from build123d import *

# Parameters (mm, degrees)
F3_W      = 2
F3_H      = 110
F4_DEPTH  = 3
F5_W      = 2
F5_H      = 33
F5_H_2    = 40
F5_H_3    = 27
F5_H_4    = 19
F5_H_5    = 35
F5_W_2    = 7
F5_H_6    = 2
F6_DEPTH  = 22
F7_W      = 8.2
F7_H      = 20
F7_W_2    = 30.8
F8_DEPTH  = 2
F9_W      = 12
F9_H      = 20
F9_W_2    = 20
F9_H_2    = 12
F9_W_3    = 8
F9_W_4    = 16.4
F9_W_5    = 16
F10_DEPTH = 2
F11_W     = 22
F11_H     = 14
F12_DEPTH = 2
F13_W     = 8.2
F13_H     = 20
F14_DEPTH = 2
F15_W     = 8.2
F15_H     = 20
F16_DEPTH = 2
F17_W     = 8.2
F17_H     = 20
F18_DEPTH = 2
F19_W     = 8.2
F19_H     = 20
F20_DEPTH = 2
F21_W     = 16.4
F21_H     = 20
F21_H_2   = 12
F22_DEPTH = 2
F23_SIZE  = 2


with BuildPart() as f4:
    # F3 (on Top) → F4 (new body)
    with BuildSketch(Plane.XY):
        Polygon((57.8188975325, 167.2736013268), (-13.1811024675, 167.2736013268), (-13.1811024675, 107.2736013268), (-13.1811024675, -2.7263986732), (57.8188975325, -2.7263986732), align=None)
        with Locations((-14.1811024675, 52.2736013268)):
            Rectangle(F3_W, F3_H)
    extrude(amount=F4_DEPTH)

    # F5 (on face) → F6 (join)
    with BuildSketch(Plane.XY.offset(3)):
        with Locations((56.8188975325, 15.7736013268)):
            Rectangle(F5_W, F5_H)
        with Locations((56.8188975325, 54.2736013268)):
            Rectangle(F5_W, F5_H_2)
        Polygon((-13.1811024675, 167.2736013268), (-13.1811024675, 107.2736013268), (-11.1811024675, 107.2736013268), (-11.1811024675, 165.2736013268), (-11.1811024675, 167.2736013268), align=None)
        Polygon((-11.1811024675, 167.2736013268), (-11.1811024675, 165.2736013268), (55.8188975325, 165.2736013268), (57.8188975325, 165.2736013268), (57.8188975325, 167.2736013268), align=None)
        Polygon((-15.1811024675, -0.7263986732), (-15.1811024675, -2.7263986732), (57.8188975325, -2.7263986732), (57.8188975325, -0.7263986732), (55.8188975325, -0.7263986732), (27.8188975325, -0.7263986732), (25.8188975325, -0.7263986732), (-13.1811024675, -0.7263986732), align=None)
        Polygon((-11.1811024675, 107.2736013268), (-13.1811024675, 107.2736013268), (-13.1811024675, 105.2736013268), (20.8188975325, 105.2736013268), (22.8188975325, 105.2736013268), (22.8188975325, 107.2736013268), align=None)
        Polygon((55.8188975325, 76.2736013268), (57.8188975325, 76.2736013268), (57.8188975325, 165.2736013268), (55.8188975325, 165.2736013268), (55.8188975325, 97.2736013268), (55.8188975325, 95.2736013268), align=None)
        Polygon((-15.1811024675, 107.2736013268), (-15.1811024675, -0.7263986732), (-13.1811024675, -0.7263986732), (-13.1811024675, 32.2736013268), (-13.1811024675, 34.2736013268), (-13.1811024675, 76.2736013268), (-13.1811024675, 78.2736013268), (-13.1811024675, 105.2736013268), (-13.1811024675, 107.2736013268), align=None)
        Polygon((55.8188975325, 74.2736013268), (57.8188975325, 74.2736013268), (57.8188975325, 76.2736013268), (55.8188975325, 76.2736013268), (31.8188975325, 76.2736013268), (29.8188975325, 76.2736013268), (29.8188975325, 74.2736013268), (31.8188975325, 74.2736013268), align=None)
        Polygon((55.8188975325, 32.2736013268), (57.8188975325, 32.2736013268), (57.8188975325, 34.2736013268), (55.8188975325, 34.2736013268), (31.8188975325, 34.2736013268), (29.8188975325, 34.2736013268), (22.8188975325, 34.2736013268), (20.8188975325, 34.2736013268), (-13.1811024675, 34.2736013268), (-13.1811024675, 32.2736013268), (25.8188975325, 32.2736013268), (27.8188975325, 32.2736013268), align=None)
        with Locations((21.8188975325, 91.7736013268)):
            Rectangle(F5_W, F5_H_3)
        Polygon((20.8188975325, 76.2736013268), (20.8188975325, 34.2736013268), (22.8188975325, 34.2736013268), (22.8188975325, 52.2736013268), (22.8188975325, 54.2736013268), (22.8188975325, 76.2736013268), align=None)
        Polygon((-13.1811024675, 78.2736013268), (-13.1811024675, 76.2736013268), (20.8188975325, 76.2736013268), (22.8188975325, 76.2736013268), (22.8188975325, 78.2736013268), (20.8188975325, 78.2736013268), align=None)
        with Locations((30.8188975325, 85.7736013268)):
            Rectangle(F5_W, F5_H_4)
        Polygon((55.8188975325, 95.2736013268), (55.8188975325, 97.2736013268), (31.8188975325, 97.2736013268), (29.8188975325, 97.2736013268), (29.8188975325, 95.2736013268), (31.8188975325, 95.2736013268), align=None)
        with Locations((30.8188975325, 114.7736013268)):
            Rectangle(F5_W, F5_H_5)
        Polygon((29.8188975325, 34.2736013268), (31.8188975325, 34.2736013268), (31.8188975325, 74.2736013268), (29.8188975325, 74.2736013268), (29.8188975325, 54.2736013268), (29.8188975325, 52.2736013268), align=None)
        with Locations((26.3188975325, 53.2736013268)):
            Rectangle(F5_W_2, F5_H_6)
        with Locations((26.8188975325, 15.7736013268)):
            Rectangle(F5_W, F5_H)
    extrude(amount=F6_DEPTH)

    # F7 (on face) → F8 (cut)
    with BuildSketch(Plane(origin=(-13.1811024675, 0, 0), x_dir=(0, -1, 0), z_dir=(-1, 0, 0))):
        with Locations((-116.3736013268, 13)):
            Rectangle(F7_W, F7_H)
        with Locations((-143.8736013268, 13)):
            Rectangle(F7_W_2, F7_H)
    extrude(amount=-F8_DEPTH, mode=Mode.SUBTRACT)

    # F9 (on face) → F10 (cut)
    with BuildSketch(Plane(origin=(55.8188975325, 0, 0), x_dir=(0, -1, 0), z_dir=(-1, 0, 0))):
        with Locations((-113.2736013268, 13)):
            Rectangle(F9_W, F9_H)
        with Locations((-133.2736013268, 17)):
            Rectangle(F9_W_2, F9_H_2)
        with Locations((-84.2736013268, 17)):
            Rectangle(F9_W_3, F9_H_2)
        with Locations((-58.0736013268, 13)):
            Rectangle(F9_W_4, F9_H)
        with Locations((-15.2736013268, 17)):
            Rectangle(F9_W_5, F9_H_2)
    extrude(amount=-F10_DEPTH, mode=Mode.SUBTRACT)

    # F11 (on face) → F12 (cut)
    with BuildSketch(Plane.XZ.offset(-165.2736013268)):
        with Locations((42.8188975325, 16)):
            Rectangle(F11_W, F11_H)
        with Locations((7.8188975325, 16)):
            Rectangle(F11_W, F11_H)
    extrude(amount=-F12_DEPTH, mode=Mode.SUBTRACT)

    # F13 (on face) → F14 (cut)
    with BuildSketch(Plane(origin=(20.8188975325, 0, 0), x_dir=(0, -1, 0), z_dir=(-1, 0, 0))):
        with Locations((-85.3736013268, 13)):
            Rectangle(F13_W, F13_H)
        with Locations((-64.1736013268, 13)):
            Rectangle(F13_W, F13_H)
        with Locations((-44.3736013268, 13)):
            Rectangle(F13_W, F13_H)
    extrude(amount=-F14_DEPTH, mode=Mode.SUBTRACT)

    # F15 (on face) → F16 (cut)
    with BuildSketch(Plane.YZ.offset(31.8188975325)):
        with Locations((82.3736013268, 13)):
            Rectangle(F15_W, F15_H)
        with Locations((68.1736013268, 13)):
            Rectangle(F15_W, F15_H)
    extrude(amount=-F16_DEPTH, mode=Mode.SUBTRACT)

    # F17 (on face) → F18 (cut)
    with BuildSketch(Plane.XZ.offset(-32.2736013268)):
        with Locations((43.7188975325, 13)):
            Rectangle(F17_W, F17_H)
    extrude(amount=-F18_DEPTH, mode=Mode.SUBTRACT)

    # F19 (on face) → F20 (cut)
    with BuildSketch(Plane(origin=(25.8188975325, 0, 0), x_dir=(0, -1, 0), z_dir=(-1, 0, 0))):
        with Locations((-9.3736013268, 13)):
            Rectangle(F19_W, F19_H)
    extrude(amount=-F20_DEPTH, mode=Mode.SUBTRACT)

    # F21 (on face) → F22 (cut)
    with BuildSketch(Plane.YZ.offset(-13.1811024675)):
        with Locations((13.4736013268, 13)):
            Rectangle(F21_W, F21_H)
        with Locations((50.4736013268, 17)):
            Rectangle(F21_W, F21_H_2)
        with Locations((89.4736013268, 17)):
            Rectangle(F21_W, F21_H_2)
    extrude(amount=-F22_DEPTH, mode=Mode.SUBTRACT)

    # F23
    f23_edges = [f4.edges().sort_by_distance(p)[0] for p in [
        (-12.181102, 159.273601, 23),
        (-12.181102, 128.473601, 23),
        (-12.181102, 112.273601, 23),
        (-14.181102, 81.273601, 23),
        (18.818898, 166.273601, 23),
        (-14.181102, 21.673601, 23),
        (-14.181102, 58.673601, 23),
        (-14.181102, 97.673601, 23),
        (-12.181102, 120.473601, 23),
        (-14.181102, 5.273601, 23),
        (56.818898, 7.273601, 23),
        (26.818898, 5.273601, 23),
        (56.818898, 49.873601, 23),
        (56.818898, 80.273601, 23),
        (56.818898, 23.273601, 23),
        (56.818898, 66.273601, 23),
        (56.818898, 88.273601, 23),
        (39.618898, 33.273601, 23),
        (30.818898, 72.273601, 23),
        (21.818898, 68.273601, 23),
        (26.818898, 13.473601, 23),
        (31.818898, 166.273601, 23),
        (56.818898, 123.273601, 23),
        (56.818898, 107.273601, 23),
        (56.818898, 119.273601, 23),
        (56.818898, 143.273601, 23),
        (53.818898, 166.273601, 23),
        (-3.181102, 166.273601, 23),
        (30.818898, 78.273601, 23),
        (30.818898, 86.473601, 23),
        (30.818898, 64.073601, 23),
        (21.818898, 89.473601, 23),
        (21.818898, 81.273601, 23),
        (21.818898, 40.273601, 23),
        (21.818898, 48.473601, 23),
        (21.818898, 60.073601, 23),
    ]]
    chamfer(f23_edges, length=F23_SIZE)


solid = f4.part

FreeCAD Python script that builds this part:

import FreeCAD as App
import Part
import Sketcher
from FreeCAD import Vector
Q = App.Units.Quantity


def edges_at(feature, points):
    """Names of the edges that pass closest to the given points."""
    edges = feature.Shape.Edges
    near = lambda p: min(range(len(edges)), key=lambda i: edges[i].distToShape(Part.Vertex(*p))[0])
    return sorted({f"Edge{near(p) + 1}" for p in points})


def add_polygon(sketch, points):
    """Adds a closed chain of lines whose ends are joined by coincident constraints."""
    first, n = sketch.GeometryCount, len(points)
    for a, b in zip(points, points[1:] + points[:1]):
        sketch.addGeometry(Part.LineSegment(App.Vector(*a, 0), App.Vector(*b, 0)), False)
    for i in range(n):
        sketch.addConstraint(Sketcher.Constraint("Coincident", first + i, 2, first + (i + 1) % n, 1))

doc = App.newDocument("Part")
params = doc.addObject("Spreadsheet::Sheet", "Params")
for row, (alias, value) in enumerate([
    ("sketch1_width", "71 mm"),
    ("sketch1_width2", "2 mm"),
    ("sketch1_height", "60 mm"),
    ("sketch1_height2", "110 mm"),
    ("pad1_length", "3 mm"),
    ("sketch2_width", "71 mm"),
    ("sketch2_width2", "2 mm"),
    ("sketch2_width3", "28 mm"),
    ("sketch2_width4", "39 mm"),
    ("sketch2_width5", "34 mm"),
    ("pad2_length", "22 mm"),
    ("sketch3_height", "20 mm"),
    ("sketch3_width", "8.2 mm"),
    ("sketch3_width2", "30.8 mm"),
    ("pocket1_length", "2 mm"),
    ("sketch4_width", "12 mm"),
    ("sketch4_width2", "20 mm"),
    ("sketch4_width3", "8 mm"),
    ("sketch4_width4", "16 mm"),
    ("sketch4_width5", "16.4 mm"),
    ("pocket2_length", "2 mm"),
    ("sketch5_width", "22 mm"),
    ("sketch5_height", "14 mm"),
    ("pocket3_length", "2 mm"),
    ("sketch6_height", "20 mm"),
    ("sketch6_width", "8.2 mm"),
    ("pocket4_length", "2 mm"),
    ("sketch7_height", "20 mm"),
    ("sketch7_width", "8.2 mm"),
    ("pocket5_length", "2 mm"),
    ("sketch8_height", "20 mm"),
    ("sketch8_width", "8.2 mm"),
    ("pocket6_length", "2 mm"),
    ("sketch9_height", "20 mm"),
    ("sketch9_width", "8.2 mm"),
    ("pocket7_length", "2 mm"),
    ("sketch10_height", "20 mm"),
    ("sketch10_height2", "12 mm"),
    ("sketch10_width", "16.4 mm"),
    ("pocket8_length", "2 mm"),
    ("chamfer_size", "2 mm"),
], start=1):
    params.set(f"A{row}", alias)
    params.set(f"B{row}", "=" + value)
    params.setAlias(f"B{row}", alias)

body = doc.addObject("PartDesign::Body", "Body")

# Sketch on XY plane
sketch1 = body.newObject("Sketcher::SketchObject", "Sketch")
sketch1.AttachmentSupport = (doc.getObject("XY_Plane"), [""])
sketch1.MapMode = "FlatFace"
add_polygon(sketch1, [(57.8, 167.3), (-13.2, 167.3), (-13.2, 107.3), (-15.2, 107.3), (-15.2, -2.7), (57.8, -2.7)])  # lines 0-5
sketch1.addConstraint([
    Sketcher.Constraint("Horizontal", 0),
    Sketcher.Constraint("Vertical", 1),
    Sketcher.Constraint("Horizontal", 2),
    Sketcher.Constraint("Vertical", 3),
    Sketcher.Constraint("Horizontal", 4),
    Sketcher.Constraint("Vertical", 5),
    Sketcher.Constraint("DistanceX", 0, 2, 0, 1, Q("71 mm")),
    Sketcher.Constraint("DistanceX", 2, 2, 2, 1, Q("2 mm")),
    Sketcher.Constraint("DistanceY", 1, 2, 1, 1, Q("60 mm")),
    Sketcher.Constraint("DistanceY", 3, 2, 3, 1, Q("110 mm")),
    Sketcher.Constraint("DistanceY", -1, 1, 0, 2, Q("167.273601 mm")),
    Sketcher.Constraint("DistanceX", 0, 2, -1, 1, Q("13.181102 mm")),
])
sketch1.setExpression("Constraints[12]", "Params.sketch1_width")
sketch1.setExpression("Constraints[13]", "Params.sketch1_width2")
sketch1.setExpression("Constraints[14]", "Params.sketch1_height")
sketch1.setExpression("Constraints[15]", "Params.sketch1_height2")
pad1 = body.newObject("PartDesign::Pad", "Pad")
pad1.Profile = sketch1
pad1.setExpression("Length", "Params.pad1_length")

# Sketch on XY plane
sketch2 = body.newObject("Sketcher::SketchObject", "Sketch001")
sketch2.AttachmentSupport = (doc.getObject("XY_Plane"), [""])
sketch2.MapMode = "FlatFace"
sketch2.AttachmentOffset = App.Placement(Vector(0, 0, 3), App.Rotation())
add_polygon(sketch2, [(57.8, 167.3), (-13.2, 167.3), (-13.2, 107.3), (-15.2, 107.3), (-15.2, -2.7), (57.8, -2.7)])  # lines 0-5
add_polygon(sketch2, [(55.8, 32.3), (55.8, -0.7), (27.8, -0.7), (27.8, 32.3)])  # lines 6-9
add_polygon(sketch2, [(25.8, -0.7), (-13.2, -0.7), (-13.2, 32.3), (25.8, 32.3)])  # lines 10-13
add_polygon(sketch2, [(-13.2, 34.3), (-13.2, 76.3), (20.8, 76.3), (20.8, 34.3)])  # lines 14-17
add_polygon(sketch2, [(-13.2, 78.3), (-13.2, 105.3), (20.8, 105.3), (20.8, 78.3)])  # lines 18-21
add_polygon(sketch2, [(22.8, 107.3), (-11.2, 107.3), (-11.2, 165.3), (55.8, 165.3), (55.8, 97.3), (31.8, 97.3), (31.8, 132.3), (29.8, 132.3), (29.8, 54.3), (22.8, 54.3)])  # lines 22-31
add_polygon(sketch2, [(29.8, 52.3), (29.8, 34.3), (22.8, 34.3), (22.8, 52.3)])  # lines 32-35
add_polygon(sketch2, [(31.8, 74.3), (55.8, 74.3), (55.8, 34.3), (31.8, 34.3)])  # lines 36-39
add_polygon(sketch2, [(55.8, 95.3), (55.8, 76.3), (31.8, 76.3), (31.8, 95.3)])  # lines 40-43
sketch2.addConstraint([
    Sketcher.Constraint("Horizontal", 0),
    Sketcher.Constraint("Vertical", 1),
    Sketcher.Constraint("Horizontal", 2),
    Sketcher.Constraint("Vertical", 3),
    Sketcher.Constraint("Horizontal", 4),
    Sketcher.Constraint("Vertical", 5),
    Sketcher.Constraint("Vertical", 6),
    Sketcher.Constraint("Horizontal", 7),
    Sketcher.Constraint("Vertical", 8),
    Sketcher.Constraint("Horizontal", 9),
    Sketcher.Constraint("Horizontal", 10),
    Sketcher.Constraint("Vertical", 11),
    Sketcher.Constraint("Horizontal", 12),
    Sketcher.Constraint("Vertical", 13),
    Sketcher.Constraint("Vertical", 14),
    Sketcher.Constraint("Horizontal", 15),
    Sketcher.Constraint("Vertical", 16),
    Sketcher.Constraint("Horizontal", 17),
    Sketcher.Constraint("Vertical", 18),
    Sketcher.Constraint("Horizontal", 19),
    Sketcher.Constraint("Vertical", 20),
    Sketcher.Constraint("Horizontal", 21),
    Sketcher.Constraint("Horizontal", 22),
    Sketcher.Constraint("Vertical", 23),
    Sketcher.Constraint("Horizontal", 24),
    Sketcher.Constraint("Vertical", 25),
    Sketcher.Constraint("Horizontal", 26),
    Sketcher.Constraint("Vertical", 27),
    Sketcher.Constraint("Horizontal", 28),
    Sketcher.Constraint("Vertical", 29),
    Sketcher.Constraint("Horizontal", 30),
    Sketcher.Constraint("Vertical", 31),
    Sketcher.Constraint("Vertical", 32),
    Sketcher.Constraint("Horizontal", 33),
    Sketcher.Constraint("Vertical", 34),
    Sketcher.Constraint("Horizontal", 35),
    Sketcher.Constraint("Horizontal", 36),
    Sketcher.Constraint("Vertical", 37),
    Sketcher.Constraint("Horizontal", 38),
    Sketcher.Constraint("Vertical", 39),
    Sketcher.Constraint("Vertical", 40),
    Sketcher.Constraint("Horizontal", 41),
    Sketcher.Constraint("Vertical", 42),
    Sketcher.Constraint("Horizontal", 43),
    Sketcher.Constraint("Horizontal", 7, 2, 10, 2),
    Sketcher.Constraint("Horizontal", 9, 2, 11, 2),
    Sketcher.Constraint("Horizontal", 2, 2, 22, 2),
    Sketcher.Constraint("Horizontal", 17, 2, 32, 2),
    Sketcher.Constraint("Horizontal", 33, 2, 37, 2),
    Sketcher.Constraint("Horizontal", 15, 2, 40, 2),
    Sketcher.Constraint("Vertical", 1, 2, 10, 2),
    Sketcher.Constraint("Vertical", 11, 2, 14, 2),
    Sketcher.Constraint("Vertical", 17, 2, 18, 2),
    Sketcher.Constraint("Vertical", 16, 2, 19, 2),
    Sketcher.Constraint("Vertical", 9, 2, 24, 2),
    Sketcher.Constraint("Vertical", 29, 2, 32, 2),
    Sketcher.Constraint("Vertical", 31, 2, 33, 2),
    Sketcher.Constraint("Vertical", 25, 2, 36, 2),
    Sketcher.Constraint("Vertical", 27, 2, 38, 2),
    Sketcher.Constraint("Vertical", 37, 2, 40, 2),
    Sketcher.Constraint("Vertical", 39, 2, 41, 2),
    Sketcher.Constraint("Equal", 21, 22),
    Sketcher.Constraint("Equal", 2, 28),
    Sketcher.Constraint("DistanceX", 0, 2, 0, 1, Q("71 mm")),
    Sketcher.Constraint("DistanceX", 2, 2, 2, 1, Q("2 mm")),
    Sketcher.Constraint("DistanceX", 7, 2, 7, 1, Q("28 mm")),
    Sketcher.Constraint("DistanceX", 10, 2, 10, 1, Q("39 mm")),
    Sketcher.Constraint("DistanceX", 15, 1, 15, 2, Q("34 mm")),
    Sketcher.Constraint("DistanceX", 24, 1, 24, 2, Q("67 mm")),
    Sketcher.Constraint("DistanceX", 26, 2, 26, 1, Q("24 mm")),
    Sketcher.Constraint("DistanceY", 1, 2, 1, 1, Q("60 mm")),
    Sketcher.Constraint("DistanceY", 3, 2, 3, 1, Q("110 mm")),
    Sketcher.Constraint("DistanceY", 6, 2, 6, 1, Q("33 mm")),
    Sketcher.Constraint("DistanceY", 14, 1, 14, 2, Q("42 mm")),
    Sketcher.Constraint("DistanceY", 18, 1, 18, 2, Q("27 mm")),
    Sketcher.Constraint("DistanceY", 23, 1, 23, 2, Q("58 mm")),
    Sketcher.Constraint("DistanceY", 25, 2, 25, 1, Q("68 mm")),
    Sketcher.Constraint("DistanceY", 27, 1, 27, 2, Q("35 mm")),
    Sketcher.Constraint("DistanceY", 29, 2, 29, 1, Q("78 mm")),
    Sketcher.Constraint("DistanceY", 32, 2, 32, 1, Q("18 mm")),
    Sketcher.Constraint("DistanceY", 37, 2, 37, 1, Q("40 mm")),
    Sketcher.Constraint("DistanceY", 40, 2, 40, 1, Q("19 mm")),
    Sketcher.Constraint("DistanceX", 6, 2, 4, 2, Q("2 mm")),
    Sketcher.Constraint("DistanceY", 4, 2, 6, 2, Q("2 mm")),
    Sketcher.Constraint("DistanceY", 14, 2, 1, 2, Q("31 mm")),
    Sketcher.Constraint("DistanceY", 18, 2, 1, 2, Q("2 mm")),
    Sketcher.Constraint("DistanceY", -1, 1, 0, 2, Q("167.273601 mm")),
    Sketcher.Constraint("DistanceX", 0, 2, -1, 1, Q("13.181102 mm")),
])
sketch2.setExpression("Constraints[107]", "Params.sketch2_width")
sketch2.setExpression("Constraints[108]", "Params.sketch2_width2")
sketch2.setExpression("Constraints[109]", "Params.sketch2_width3")
sketch2.setExpression("Constraints[110]", "Params.sketch2_width4")
sketch2.setExpression("Constraints[111]", "Params.sketch2_width5")
pad2 = body.newObject("PartDesign::Pad", "Pad001")
pad2.Profile = sketch2
pad2.setExpression("Length", "Params.pad2_length")

# Sketch on YZ plane
sketch3 = body.newObject("Sketcher::SketchObject", "Sketch002")
sketch3.AttachmentSupport = (doc.getObject("YZ_Plane"), [""])
sketch3.MapMode = "FlatFace"
sketch3.AttachmentOffset = App.Placement(Vector(0, 0, -13.181102), App.Rotation())
add_polygon(sketch3, [(120, 23), (120, 3), (112, 3), (112, 23)])  # lines 0-3
add_polygon(sketch3, [(159, 23), (159, 3), (128, 3), (128, 23)])  # lines 4-7
sketch3.addConstraint([
    Sketcher.Constraint("Vertical", 0),
    Sketcher.Constraint("Horizontal", 1),
    Sketcher.Constraint("Vertical", 2),
    Sketcher.Constraint("Horizontal", 3),
    Sketcher.Constraint("Vertical", 4),
    Sketcher.Constraint("Horizontal", 5),
    Sketcher.Constraint("Vertical", 6),
    Sketcher.Constraint("Horizontal", 7),
    Sketcher.Constraint("Horizontal", 1, 2, 4, 2),
    Sketcher.Constraint("Horizontal", 3, 2, 6, 2),
    Sketcher.Constraint("DistanceY", 0, 2, 0, 1, Q("20 mm")),
    Sketcher.Constraint("DistanceX", 1, 2, 1, 1, Q("8.2 mm")),
    Sketcher.Constraint("DistanceX", 5, 2, 5, 1, Q("30.8 mm")),
    Sketcher.Constraint("DistanceY", -1, 1, 0, 2, Q("3 mm")),
    Sketcher.Constraint("DistanceX", 1, 2, 4, 2, Q("47 mm")),
    Sketcher.Constraint("DistanceX", -1, 1, 0, 2, Q("120.473601 mm")),
])
sketch3.setExpression("Constraints[18]", "Params.sketch3_height")
sketch3.setExpression("Constraints[19]", "Params.sketch3_width")
sketch3.setExpression("Constraints[20]", "Params.sketch3_width2")
pocket1 = body.newObject("PartDesign::Pocket", "Pocket")
pocket1.Profile = sketch3
pocket1.setExpression("Length", "Params.pocket1_length")
pocket1.Reversed = True

# Sketch on YZ plane
sketch4 = body.newObject("Sketcher::SketchObject", "Sketch003")
sketch4.AttachmentSupport = (doc.getObject("YZ_Plane"), [""])
sketch4.MapMode = "FlatFace"
sketch4.AttachmentOffset = App.Placement(Vector(0, 0, 55.818898), App.Rotation())
add_polygon(sketch4, [(119, 23), (119, 3), (107, 3), (107, 23)])  # lines 0-3
add_polygon(sketch4, [(143, 23), (143, 11), (123, 11), (123, 23)])  # lines 4-7
add_polygon(sketch4, [(88, 23), (88, 11), (80, 11), (80, 23)])  # lines 8-11
add_polygon(sketch4, [(66, 23), (66, 3), (50, 3), (50, 23)])  # lines 12-15
add_polygon(sketch4, [(23, 23), (23, 11), (7, 11), (7, 23)])  # lines 16-19
sketch4.addConstraint([
    Sketcher.Constraint("Vertical", 0),
    Sketcher.Constraint("Horizontal", 1),
    Sketcher.Constraint("Vertical", 2),
    Sketcher.Constraint("Horizontal", 3),
    Sketcher.Constraint("Vertical", 4),
    Sketcher.Constraint("Horizontal", 5),
    Sketcher.Constraint("Vertical", 6),
    Sketcher.Constraint("Horizontal", 7),
    Sketcher.Constraint("Vertical", 8),
    Sketcher.Constraint("Horizontal", 9),
    Sketcher.Constraint("Vertical", 10),
    Sketcher.Constraint("Horizontal", 11),
    Sketcher.Constraint("Vertical", 12),
    Sketcher.Constraint("Horizontal", 13),
    Sketcher.Constraint("Vertical", 14),
    Sketcher.Constraint("Horizontal", 15),
    Sketcher.Constraint("Vertical", 16),
    Sketcher.Constraint("Horizontal", 17),
    Sketcher.Constraint("Vertical", 18),
    Sketcher.Constraint("Horizontal", 19),
    Sketcher.Constraint("Horizontal", 3, 2, 6, 2),
    Sketcher.Constraint("Horizontal", 5, 2, 8, 2),
    Sketcher.Constraint("Horizontal", 7, 2, 10, 2),
    Sketcher.Constraint("Horizontal", 1, 2, 12, 2),
    Sketcher.Constraint("Horizontal", 11, 2, 14, 2),
    Sketcher.Constraint("Horizontal", 9, 2, 16, 2),
    Sketcher.Constraint("Horizontal", 15, 2, 18, 2),
    Sketcher.Constraint("Equal", 7, 0),
    Sketcher.Constraint("Equal", 3, 4),
    Sketcher.Constraint("DistanceX", 1, 2, 1, 1, Q("12 mm")),
    Sketcher.Constraint("DistanceX", 5, 2, 5, 1, Q("20 mm")),
    Sketcher.Constraint("DistanceX", 9, 2, 9, 1, Q("8 mm")),
    Sketcher.Constraint("DistanceX", 17, 2, 17, 1, Q("16 mm")),
    Sketcher.Constraint("DistanceX", 13, 2, 13, 1, Q("16.4 mm")),
    Sketcher.Constraint("DistanceY", -1, 1, 0, 2, Q("3 mm")),
    Sketcher.Constraint("DistanceX", 0, 2, 4, 2, Q("24 mm")),
    Sketcher.Constraint("DistanceX", 8, 2, 1, 2, Q("19 mm")),
    Sketcher.Constraint("DistanceX", 12, 2, 9, 2, Q("14 mm")),
    Sketcher.Constraint("DistanceX", 16, 2, 12, 2, Q("43 mm")),
    Sketcher.Constraint("DistanceX", -1, 1, 0, 2, Q("119.273601 mm")),
])
sketch4.setExpression("Constraints[49]", "Params.sketch4_width")
sketch4.setExpression("Constraints[50]", "Params.sketch4_width2")
sketch4.setExpression("Constraints[51]", "Params.sketch4_width3")
sketch4.setExpression("Constraints[52]", "Params.sketch4_width4")
sketch4.setExpression("Constraints[53]", "Params.sketch4_width5")
pocket2 = body.newObject("PartDesign::Pocket", "Pocket001")
pocket2.Profile = sketch4
pocket2.setExpression("Length", "Params.pocket2_length")
pocket2.Reversed = True

# Sketch on XZ plane
sketch5 = body.newObject("Sketcher::SketchObject", "Sketch004")
sketch5.AttachmentSupport = (doc.getObject("XZ_Plane"), [""])
sketch5.MapMode = "FlatFace"
sketch5.AttachmentOffset = App.Placement(Vector(0, 0, -165.273601), App.Rotation())
add_polygon(sketch5, [(32, 23), (32, 9), (54, 9), (54, 23)])  # lines 0-3
add_polygon(sketch5, [(-3, 23), (-3, 9), (19, 9), (19, 23)])  # lines 4-7
sketch5.addConstraint([
    Sketcher.Constraint("Vertical", 0),
    Sketcher.Constraint("Horizontal", 1),
    Sketcher.Constraint("Vertical", 2),
    Sketcher.Constraint("Horizontal", 3),
    Sketcher.Constraint("Vertical", 4),
    Sketcher.Constraint("Horizontal", 5),
    Sketcher.Constraint("Vertical", 6),
    Sketcher.Constraint("Horizontal", 7),
    Sketcher.Constraint("Horizontal", 1, 2, 4, 2),
    Sketcher.Constraint("Horizontal", 3, 2, 6, 2),
    Sketcher.Constraint("Equal", 3, 5),
    Sketcher.Constraint("DistanceX", 1, 1, 1, 2, Q("22 mm")),
    Sketcher.Constraint("DistanceY", 0, 2, 0, 1, Q("14 mm")),
    Sketcher.Constraint("DistanceY", -1, 1, 0, 2, Q("9 mm")),
    Sketcher.Constraint("DistanceX", 4, 2, 0, 2, Q("35 mm")),
    Sketcher.Constraint("DistanceX", -1, 1, 0, 2, Q("31.818898 mm")),
])
sketch5.setExpression("Constraints[19]", "Params.sketch5_width")
sketch5.setExpression("Constraints[20]", "Params.sketch5_height")
pocket3 = body.newObject("PartDesign::Pocket", "Pocket002")
pocket3.Profile = sketch5
pocket3.setExpression("Length", "Params.pocket3_length")

# Sketch on YZ plane
sketch6 = body.newObject("Sketcher::SketchObject", "Sketch005")
sketch6.AttachmentSupport = (doc.getObject("YZ_Plane"), [""])
sketch6.MapMode = "FlatFace"
sketch6.AttachmentOffset = App.Placement(Vector(0, 0, 20.818898), App.Rotation())
add_polygon(sketch6, [(89, 23), (89, 3), (81, 3), (81, 23)])  # lines 0-3
add_polygon(sketch6, [(68, 23), (68, 3), (60, 3), (60, 23)])  # lines 4-7
add_polygon(sketch6, [(48, 23), (48, 3), (40, 3), (40, 23)])  # lines 8-11
sketch6.addConstraint([
    Sketcher.Constraint("Vertical", 0),
    Sketcher.Constraint("Horizontal", 1),
    Sketcher.Constraint("Vertical", 2),
    Sketcher.Constraint("Horizontal", 3),
    Sketcher.Constraint("Vertical", 4),
    Sketcher.Constraint("Horizontal", 5),
    Sketcher.Constraint("Vertical", 6),
    Sketcher.Constraint("Horizontal", 7),
    Sketcher.Constraint("Vertical", 8),
    Sketcher.Constraint("Horizontal", 9),
    Sketcher.Constraint("Vertical", 10),
    Sketcher.Constraint("Horizontal", 11),
    Sketcher.Constraint("Horizontal", 1, 2, 4, 2),
    Sketcher.Constraint("Horizontal", 3, 2, 6, 2),
    Sketcher.Constraint("Horizontal", 5, 2, 8, 2),
    Sketcher.Constraint("Horizontal", 7, 2, 10, 2),
    Sketcher.Constraint("Equal", 3, 5),
    Sketcher.Constraint("Equal", 7, 9),
    Sketcher.Constraint("DistanceY", 0, 2, 0, 1, Q("20 mm")),
    Sketcher.Constraint("DistanceX", 1, 2, 1, 1, Q("8.2 mm")),
    Sketcher.Constraint("DistanceY", -1, 1, 0, 2, Q("3 mm")),
    Sketcher.Constraint("DistanceX", 4, 2, 1, 2, Q("13 mm")),
    Sketcher.Constraint("DistanceX", 9, 2, 4, 2, Q("28 mm")),
    Sketcher.Constraint("DistanceX", -1, 1, 0, 2, Q("89.473601 mm")),
])
sketch6.setExpression("Constraints[30]", "Params.sketch6_height")
sketch6.setExpression("Constraints[31]", "Params.sketch6_width")
pocket4 = body.newObject("PartDesign::Pocket", "Pocket003")
pocket4.Profile = sketch6
pocket4.setExpression("Length", "Params.pocket4_length")
pocket4.Reversed = True

# Sketch on YZ plane
sketch7 = body.newObject("Sketcher::SketchObject", "Sketch006")
sketch7.AttachmentSupport = (doc.getObject("YZ_Plane"), [""])
sketch7.MapMode = "FlatFace"
sketch7.AttachmentOffset = App.Placement(Vector(0, 0, 31.818898), App.Rotation())
add_polygon(sketch7, [(78, 23), (78, 3), (86, 3), (86, 23)])  # lines 0-3
add_polygon(sketch7, [(64, 23), (64, 3), (72, 3), (72, 23)])  # lines 4-7
sketch7.addConstraint([
    Sketcher.Constraint("Vertical", 0),
    Sketcher.Constraint("Horizontal", 1),
    Sketcher.Constraint("Vertical", 2),
    Sketcher.Constraint("Horizontal", 3),
    Sketcher.Constraint("Vertical", 4),
    Sketcher.Constraint("Horizontal", 5),
    Sketcher.Constraint("Vertical", 6),
    Sketcher.Constraint("Horizontal", 7),
    Sketcher.Constraint("Horizontal", 1, 2, 4, 2),
    Sketcher.Constraint("Horizontal", 3, 2, 6, 2),
    Sketcher.Constraint("Equal", 3, 5),
    Sketcher.Constraint("DistanceY", 0, 2, 0, 1, Q("20 mm")),
    Sketcher.Constraint("DistanceX", 1, 1, 1, 2, Q("8.2 mm")),
    Sketcher.Constraint("DistanceY", -1, 1, 0, 2, Q("3 mm")),
    Sketcher.Constraint("DistanceX", 5, 2, 0, 2, Q("6 mm")),
    Sketcher.Constraint("DistanceX", -1, 1, 0, 2, Q("78.273601 mm")),
])
sketch7.setExpression("Constraints[19]", "Params.sketch7_height")
sketch7.setExpression("Constraints[20]", "Params.sketch7_width")
pocket5 = body.newObject("PartDesign::Pocket", "Pocket004")
pocket5.Profile = sketch7
pocket5.setExpression("Length", "Params.pocket5_length")

# Sketch on XZ plane
sketch8 = body.newObject("Sketcher::SketchObject", "Sketch007")
sketch8.AttachmentSupport = (doc.getObject("XZ_Plane"), [""])
sketch8.MapMode = "FlatFace"
sketch8.AttachmentOffset = App.Placement(Vector(0, 0, -32.273601), App.Rotation())
add_polygon(sketch8, [(40, 23), (40, 3), (48, 3), (48, 23)])  # lines 0-3
sketch8.addConstraint([
    Sketcher.Constraint("Vertical", 0),
    Sketcher.Constraint("Horizontal", 1),
    Sketcher.Constraint("Vertical", 2),
    Sketcher.Constraint("Horizontal", 3),
    Sketcher.Constraint("DistanceY", 0, 2, 0, 1, Q("20 mm")),
    Sketcher.Constraint("DistanceX", 1, 1, 1, 2, Q("8.2 mm")),
    Sketcher.Constraint("DistanceY", -1, 1, 0, 2, Q("3 mm")),
    Sketcher.Constraint("DistanceX", -1, 1, 0, 2, Q("39.618898 mm")),
])
sketch8.setExpression("Constraints[8]", "Params.sketch8_height")
sketch8.setExpression("Constraints[9]", "Params.sketch8_width")
pocket6 = body.newObject("PartDesign::Pocket", "Pocket005")
pocket6.Profile = sketch8
pocket6.setExpression("Length", "Params.pocket6_length")

# Sketch on YZ plane
sketch9 = body.newObject("Sketcher::SketchObject", "Sketch008")
sketch9.AttachmentSupport = (doc.getObject("YZ_Plane"), [""])
sketch9.MapMode = "FlatFace"
sketch9.AttachmentOffset = App.Placement(Vector(0, 0, 25.818898), App.Rotation())
add_polygon(sketch9, [(13, 23), (13, 3), (5, 3), (5, 23)])  # lines 0-3
sketch9.addConstraint([
    Sketcher.Constraint("Vertical", 0),
    Sketcher.Constraint("Horizontal", 1),
    Sketcher.Constraint("Vertical", 2),
    Sketcher.Constraint("Horizontal", 3),
    Sketcher.Constraint("DistanceY", 0, 2, 0, 1, Q("20 mm")),
    Sketcher.Constraint("DistanceX", 1, 2, 1, 1, Q("8.2 mm")),
    Sketcher.Constraint("DistanceY", -1, 1, 0, 2, Q("3 mm")),
    Sketcher.Constraint("DistanceX", -1, 1, 0, 2, Q("13.473601 mm")),
])
sketch9.setExpression("Constraints[8]", "Params.sketch9_height")
sketch9.setExpression("Constraints[9]", "Params.sketch9_width")
pocket7 = body.newObject("PartDesign::Pocket", "Pocket006")
pocket7.Profile = sketch9
pocket7.setExpression("Length", "Params.pocket7_length")
pocket7.Reversed = True

# Sketch on YZ plane
sketch10 = body.newObject("Sketcher::SketchObject", "Sketch009")
sketch10.AttachmentSupport = (doc.getObject("YZ_Plane"), [""])
sketch10.MapMode = "FlatFace"
sketch10.AttachmentOffset = App.Placement(Vector(0, 0, -13.181102), App.Rotation())
add_polygon(sketch10, [(5, 23), (5, 3), (22, 3), (22, 23)])  # lines 0-3
add_polygon(sketch10, [(42, 23), (42, 11), (59, 11), (59, 23)])  # lines 4-7
add_polygon(sketch10, [(81, 23), (81, 11), (98, 11), (98, 23)])  # lines 8-11
sketch10.addConstraint([
    Sketcher.Constraint("Vertical", 0),
    Sketcher.Constraint("Horizontal", 1),
    Sketcher.Constraint("Vertical", 2),
    Sketcher.Constraint("Horizontal", 3),
    Sketcher.Constraint("Vertical", 4),
    Sketcher.Constraint("Horizontal", 5),
    Sketcher.Constraint("Vertical", 6),
    Sketcher.Constraint("Horizontal", 7),
    Sketcher.Constraint("Vertical", 8),
    Sketcher.Constraint("Horizontal", 9),
    Sketcher.Constraint("Vertical", 10),
    Sketcher.Constraint("Horizontal", 11),
    Sketcher.Constraint("Horizontal", 3, 2, 6, 2),
    Sketcher.Constraint("Horizontal", 5, 2, 8, 2),
    Sketcher.Constraint("Horizontal", 7, 2, 10, 2),
    Sketcher.Constraint("Equal", 3, 5),
    Sketcher.Constraint("Equal", 7, 9),
    Sketcher.Constraint("DistanceY", 0, 2, 0, 1, Q("20 mm")),
    Sketcher.Constraint("DistanceY", 4, 2, 4, 1, Q("12 mm")),
    Sketcher.Constraint("DistanceX", 1, 1, 1, 2, Q("16.4 mm")),
    Sketcher.Constraint("DistanceY", -1, 1, 0, 2, Q("3 mm")),
    Sketcher.Constraint("DistanceX", 0, 2, 4, 2, Q("37 mm")),
    Sketcher.Constraint("DistanceX", 4, 2, 8, 2, Q("39 mm")),
    Sketcher.Constraint("DistanceX", -1, 1, 0, 2, Q("5.273601 mm")),
])
sketch10.setExpression("Constraints[29]", "Params.sketch10_height")
sketch10.setExpression("Constraints[30]", "Params.sketch10_height2")
sketch10.setExpression("Constraints[31]", "Params.sketch10_width")
pocket8 = body.newObject("PartDesign::Pocket", "Pocket007")
pocket8.Profile = sketch10
pocket8.setExpression("Length", "Params.pocket8_length")
doc.recompute()

chamfer = body.newObject("PartDesign::Chamfer", "Chamfer")
chamfer.Base = (pocket8, edges_at(pocket8, [
    (-12.181, 159.274, 23),
    (-12.181, 128.474, 23),
    (-12.181, 112.274, 23),
    (-14.181, 81.274, 23),
    (18.819, 166.274, 23),
    (-14.181, 21.674, 23),
    (-14.181, 58.674, 23),
    (-14.181, 97.674, 23),
    (-12.181, 120.474, 23),
    (-14.181, 5.274, 23),
    (56.819, 7.274, 23),
    (26.819, 5.274, 23),
    (56.819, 49.874, 23),
    (56.819, 80.274, 23),
    (56.819, 23.274, 23),
    (56.819, 66.274, 23),
    (56.819, 88.274, 23),
    (39.619, 33.274, 23),
    (30.819, 72.274, 23),
    (21.819, 68.274, 23),
    (26.819, 13.474, 23),
    (31.819, 166.274, 23),
    (56.819, 123.274, 23),
    (56.819, 107.274, 23),
    (56.819, 119.274, 23),
    (56.819, 143.274, 23),
    (53.819, 166.274, 23),
    (-3.181, 166.274, 23),
    (30.819, 78.274, 23),
    (30.819, 86.474, 23),
    (30.819, 64.074, 23),
    (21.819, 89.474, 23),
    (21.819, 81.274, 23),
    (21.819, 40.274, 23),
    (21.819, 48.474, 23),
    (21.819, 60.074, 23),
]))
chamfer.setExpression("Size", "Params.chamfer_size")

doc.recompute()
